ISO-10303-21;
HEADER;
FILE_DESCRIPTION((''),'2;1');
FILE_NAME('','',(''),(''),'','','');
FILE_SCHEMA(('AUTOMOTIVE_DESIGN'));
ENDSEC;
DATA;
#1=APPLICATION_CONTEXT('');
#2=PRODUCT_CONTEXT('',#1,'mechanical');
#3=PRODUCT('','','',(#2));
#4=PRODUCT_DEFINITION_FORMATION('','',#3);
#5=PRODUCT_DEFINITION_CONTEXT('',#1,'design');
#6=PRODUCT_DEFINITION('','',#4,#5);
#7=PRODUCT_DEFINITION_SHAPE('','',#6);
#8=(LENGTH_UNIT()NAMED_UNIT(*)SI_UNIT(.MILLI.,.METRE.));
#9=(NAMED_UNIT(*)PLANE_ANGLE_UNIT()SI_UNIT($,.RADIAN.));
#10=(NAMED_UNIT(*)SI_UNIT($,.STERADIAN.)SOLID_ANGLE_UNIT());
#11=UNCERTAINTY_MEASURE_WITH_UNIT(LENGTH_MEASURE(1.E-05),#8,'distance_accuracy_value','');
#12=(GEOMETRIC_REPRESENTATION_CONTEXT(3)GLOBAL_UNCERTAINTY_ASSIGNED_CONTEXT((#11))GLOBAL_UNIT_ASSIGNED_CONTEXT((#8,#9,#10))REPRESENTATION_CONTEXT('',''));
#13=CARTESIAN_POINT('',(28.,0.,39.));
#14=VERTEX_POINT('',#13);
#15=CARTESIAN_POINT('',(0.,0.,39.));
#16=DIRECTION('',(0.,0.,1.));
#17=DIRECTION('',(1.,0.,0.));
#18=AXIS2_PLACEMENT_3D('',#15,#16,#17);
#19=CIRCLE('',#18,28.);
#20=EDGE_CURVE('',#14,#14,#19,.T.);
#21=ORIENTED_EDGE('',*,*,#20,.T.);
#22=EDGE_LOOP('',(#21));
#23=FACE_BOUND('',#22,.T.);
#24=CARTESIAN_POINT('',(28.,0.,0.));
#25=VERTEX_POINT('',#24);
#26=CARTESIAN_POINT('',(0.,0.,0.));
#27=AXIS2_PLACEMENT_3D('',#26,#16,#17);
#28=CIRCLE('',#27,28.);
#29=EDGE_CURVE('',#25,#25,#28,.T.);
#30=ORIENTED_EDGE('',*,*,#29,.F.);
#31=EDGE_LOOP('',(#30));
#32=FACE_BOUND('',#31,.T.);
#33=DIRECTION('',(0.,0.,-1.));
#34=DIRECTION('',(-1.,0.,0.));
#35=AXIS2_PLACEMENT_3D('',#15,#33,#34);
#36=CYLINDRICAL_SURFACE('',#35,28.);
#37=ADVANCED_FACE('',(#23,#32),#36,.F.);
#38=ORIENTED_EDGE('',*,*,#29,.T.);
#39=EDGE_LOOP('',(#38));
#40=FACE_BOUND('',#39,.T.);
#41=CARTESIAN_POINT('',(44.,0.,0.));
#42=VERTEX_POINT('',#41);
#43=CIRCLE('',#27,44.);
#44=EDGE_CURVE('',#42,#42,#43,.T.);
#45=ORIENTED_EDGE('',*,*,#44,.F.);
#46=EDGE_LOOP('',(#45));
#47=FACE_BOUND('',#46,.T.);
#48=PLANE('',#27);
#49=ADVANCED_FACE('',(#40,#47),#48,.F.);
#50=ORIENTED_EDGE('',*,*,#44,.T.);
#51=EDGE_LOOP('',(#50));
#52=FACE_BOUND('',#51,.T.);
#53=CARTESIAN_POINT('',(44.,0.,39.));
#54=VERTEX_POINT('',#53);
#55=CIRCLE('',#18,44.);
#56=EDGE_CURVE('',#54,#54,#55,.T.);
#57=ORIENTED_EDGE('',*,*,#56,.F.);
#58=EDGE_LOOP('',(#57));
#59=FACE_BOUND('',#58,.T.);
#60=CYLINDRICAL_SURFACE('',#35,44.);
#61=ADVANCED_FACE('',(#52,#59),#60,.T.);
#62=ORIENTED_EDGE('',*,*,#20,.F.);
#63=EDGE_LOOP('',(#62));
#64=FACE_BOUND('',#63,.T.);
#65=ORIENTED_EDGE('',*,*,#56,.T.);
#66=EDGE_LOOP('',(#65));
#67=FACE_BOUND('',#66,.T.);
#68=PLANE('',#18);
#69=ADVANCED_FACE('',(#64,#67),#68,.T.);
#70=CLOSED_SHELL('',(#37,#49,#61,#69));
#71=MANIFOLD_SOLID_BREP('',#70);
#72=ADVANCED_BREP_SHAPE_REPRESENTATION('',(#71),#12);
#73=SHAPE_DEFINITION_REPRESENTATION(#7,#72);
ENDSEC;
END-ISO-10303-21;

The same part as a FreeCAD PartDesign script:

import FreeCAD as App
import Part
import Sketcher
Q = App.Units.Quantity

doc = App.newDocument("Part")
body = doc.addObject("PartDesign::Body", "Body")

# Sketch on XY plane
sketch1 = body.newObject("Sketcher::SketchObject", "Sketch")
sketch1.AttachmentSupport = (doc.getObject("XY_Plane"), [""])
sketch1.MapMode = "FlatFace"
sketch1.addGeometry([
    Part.Circle(App.Vector(0, 0, 0), App.Vector(0, 0, 1), 44),
    Part.Circle(App.Vector(0, 0, 0), App.Vector(0, 0, 1), 28),
], False)
sketch1.addConstraint([
    Sketcher.Constraint("Coincident", 0, 3, -1, 1),
    Sketcher.Constraint("Coincident", 1, 3, -1, 1),
    Sketcher.Constraint("Diameter", 0, Q("88 mm")),
    Sketcher.Constraint("Diameter", 1, Q("56 mm")),
])
pad1 = body.newObject("PartDesign::Pad", "Pad")
pad1.Profile = sketch1
pad1.Length = 39

doc.recompute()
